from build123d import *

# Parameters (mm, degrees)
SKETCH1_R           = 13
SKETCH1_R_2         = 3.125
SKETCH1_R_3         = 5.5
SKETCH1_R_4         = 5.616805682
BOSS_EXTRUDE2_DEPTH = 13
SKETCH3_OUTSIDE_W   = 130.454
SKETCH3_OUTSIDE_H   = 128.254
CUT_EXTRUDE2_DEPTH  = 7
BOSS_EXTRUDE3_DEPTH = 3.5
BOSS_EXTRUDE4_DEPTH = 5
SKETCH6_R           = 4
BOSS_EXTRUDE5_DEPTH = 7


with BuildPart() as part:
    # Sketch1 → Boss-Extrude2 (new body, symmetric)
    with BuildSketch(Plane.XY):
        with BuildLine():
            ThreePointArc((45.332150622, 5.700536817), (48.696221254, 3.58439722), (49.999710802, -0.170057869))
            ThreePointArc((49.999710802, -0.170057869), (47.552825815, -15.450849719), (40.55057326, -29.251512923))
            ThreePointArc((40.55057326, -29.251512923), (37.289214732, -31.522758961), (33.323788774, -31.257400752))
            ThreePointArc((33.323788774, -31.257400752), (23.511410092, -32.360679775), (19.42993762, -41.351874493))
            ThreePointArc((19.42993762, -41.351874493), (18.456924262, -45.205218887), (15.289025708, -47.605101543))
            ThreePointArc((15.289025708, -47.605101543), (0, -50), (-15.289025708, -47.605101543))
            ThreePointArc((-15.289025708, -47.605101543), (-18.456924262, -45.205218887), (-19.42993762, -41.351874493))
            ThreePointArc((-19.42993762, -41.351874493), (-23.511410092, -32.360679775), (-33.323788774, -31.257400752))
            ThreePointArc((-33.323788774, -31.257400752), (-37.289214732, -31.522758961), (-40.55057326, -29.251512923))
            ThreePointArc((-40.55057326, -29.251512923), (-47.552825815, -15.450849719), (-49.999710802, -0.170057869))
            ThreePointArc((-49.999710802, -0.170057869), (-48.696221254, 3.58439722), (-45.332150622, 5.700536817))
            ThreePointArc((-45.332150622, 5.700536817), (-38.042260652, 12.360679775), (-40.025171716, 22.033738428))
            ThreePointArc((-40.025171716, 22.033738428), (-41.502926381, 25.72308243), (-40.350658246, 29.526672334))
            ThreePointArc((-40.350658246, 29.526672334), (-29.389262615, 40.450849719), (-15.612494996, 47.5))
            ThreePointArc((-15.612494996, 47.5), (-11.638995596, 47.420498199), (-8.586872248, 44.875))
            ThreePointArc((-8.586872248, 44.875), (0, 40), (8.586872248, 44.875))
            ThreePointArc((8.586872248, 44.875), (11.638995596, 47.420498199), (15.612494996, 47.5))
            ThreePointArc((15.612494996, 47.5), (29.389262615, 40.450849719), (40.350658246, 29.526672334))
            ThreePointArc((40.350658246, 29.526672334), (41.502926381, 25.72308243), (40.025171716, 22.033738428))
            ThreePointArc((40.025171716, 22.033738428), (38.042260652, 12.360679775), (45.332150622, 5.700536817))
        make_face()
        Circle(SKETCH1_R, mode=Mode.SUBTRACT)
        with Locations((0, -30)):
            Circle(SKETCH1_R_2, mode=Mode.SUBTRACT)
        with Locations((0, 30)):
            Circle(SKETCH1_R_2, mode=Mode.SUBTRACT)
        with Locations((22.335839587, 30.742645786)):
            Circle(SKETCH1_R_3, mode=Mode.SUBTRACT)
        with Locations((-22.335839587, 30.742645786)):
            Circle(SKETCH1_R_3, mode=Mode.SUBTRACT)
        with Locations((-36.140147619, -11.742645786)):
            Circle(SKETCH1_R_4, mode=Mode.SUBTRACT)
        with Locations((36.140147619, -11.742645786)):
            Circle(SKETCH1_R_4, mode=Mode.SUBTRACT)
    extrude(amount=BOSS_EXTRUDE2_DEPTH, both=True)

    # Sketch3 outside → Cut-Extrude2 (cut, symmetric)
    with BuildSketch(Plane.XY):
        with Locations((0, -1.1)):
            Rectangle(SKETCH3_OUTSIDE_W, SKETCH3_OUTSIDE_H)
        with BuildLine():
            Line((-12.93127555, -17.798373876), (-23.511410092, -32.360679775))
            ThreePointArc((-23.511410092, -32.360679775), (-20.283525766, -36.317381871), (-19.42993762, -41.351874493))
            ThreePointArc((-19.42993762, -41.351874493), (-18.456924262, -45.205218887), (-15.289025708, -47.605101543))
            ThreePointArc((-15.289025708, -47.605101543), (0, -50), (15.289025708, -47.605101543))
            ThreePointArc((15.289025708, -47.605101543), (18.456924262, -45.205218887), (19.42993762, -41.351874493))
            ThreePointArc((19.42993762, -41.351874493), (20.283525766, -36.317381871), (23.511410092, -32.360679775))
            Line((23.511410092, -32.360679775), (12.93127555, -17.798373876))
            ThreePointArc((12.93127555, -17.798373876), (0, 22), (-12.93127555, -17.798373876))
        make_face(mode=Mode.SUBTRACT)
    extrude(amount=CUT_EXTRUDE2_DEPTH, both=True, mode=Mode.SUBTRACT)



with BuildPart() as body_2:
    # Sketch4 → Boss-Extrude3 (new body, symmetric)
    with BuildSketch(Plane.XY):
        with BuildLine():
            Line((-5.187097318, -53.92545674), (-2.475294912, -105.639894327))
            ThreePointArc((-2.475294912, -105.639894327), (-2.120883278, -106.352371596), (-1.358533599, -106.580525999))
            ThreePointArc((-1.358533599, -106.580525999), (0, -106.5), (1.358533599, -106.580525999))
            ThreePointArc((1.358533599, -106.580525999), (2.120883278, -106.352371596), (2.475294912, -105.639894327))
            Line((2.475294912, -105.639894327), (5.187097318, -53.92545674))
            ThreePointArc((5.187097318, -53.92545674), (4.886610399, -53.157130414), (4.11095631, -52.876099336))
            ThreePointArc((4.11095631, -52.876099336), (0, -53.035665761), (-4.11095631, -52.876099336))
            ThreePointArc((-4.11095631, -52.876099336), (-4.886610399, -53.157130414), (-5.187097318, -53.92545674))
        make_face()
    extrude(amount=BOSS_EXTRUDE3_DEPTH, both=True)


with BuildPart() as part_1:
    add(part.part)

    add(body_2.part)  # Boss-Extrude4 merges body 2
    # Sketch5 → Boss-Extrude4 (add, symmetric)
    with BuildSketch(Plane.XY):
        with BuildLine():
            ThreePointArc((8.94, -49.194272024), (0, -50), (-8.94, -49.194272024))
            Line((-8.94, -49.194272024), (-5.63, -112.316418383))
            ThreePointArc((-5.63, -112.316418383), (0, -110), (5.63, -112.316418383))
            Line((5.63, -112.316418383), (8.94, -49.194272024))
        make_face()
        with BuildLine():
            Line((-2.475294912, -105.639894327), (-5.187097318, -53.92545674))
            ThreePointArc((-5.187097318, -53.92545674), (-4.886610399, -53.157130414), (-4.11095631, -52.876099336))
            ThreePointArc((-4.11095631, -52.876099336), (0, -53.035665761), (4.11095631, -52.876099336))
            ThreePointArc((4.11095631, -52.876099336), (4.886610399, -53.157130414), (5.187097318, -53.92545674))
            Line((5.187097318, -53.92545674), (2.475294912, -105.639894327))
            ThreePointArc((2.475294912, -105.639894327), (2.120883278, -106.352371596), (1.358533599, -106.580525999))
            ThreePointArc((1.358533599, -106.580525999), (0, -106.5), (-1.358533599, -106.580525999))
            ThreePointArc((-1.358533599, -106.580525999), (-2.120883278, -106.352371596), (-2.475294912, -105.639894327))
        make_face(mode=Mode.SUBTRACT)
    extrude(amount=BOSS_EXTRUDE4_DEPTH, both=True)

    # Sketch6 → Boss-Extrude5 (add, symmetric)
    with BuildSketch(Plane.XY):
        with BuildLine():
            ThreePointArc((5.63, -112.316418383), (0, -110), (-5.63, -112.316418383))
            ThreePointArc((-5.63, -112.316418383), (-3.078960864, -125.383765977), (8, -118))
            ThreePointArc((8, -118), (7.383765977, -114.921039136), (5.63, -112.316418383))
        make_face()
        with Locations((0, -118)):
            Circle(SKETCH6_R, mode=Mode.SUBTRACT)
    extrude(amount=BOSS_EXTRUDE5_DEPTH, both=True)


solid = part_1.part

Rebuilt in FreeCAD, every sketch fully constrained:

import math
import FreeCAD as App
import Part
import Sketcher
Q = App.Units.Quantity

doc = App.newDocument("Part")
body = doc.addObject("PartDesign::Body", "Body")

# Sketch on XY plane
sketch1 = body.newObject("Sketcher::SketchObject", "Sketch")
sketch1.AttachmentSupport = (doc.getObject("XY_Plane"), [""])
sketch1.MapMode = "FlatFace"
sketch1.addGeometry(Part.ArcOfCircle(Part.Circle(App.Vector(44, -0.1, 0), App.Vector(0, 0, 1), 6), math.radians(0), math.radians(77)), False)
sketch1.addGeometry(Part.ArcOfCircle(Part.Circle(App.Vector(47.6, 15.5, 0), App.Vector(0, 0, 1), 10), math.radians(139), math.radians(257)), False)
sketch1.addGeometry(Part.ArcOfCircle(Part.Circle(App.Vector(35.5, 26, 0), App.Vector(0, 0, 1), 6), math.radians(-41), math.radians(36)), False)
sketch1.addGeometry(Part.ArcOfCircle(Part.Circle(App.Vector(0, 0, 0), App.Vector(0, 0, 1), 50), math.radians(36), math.radians(72)), False)
sketch1.addGeometry(Part.ArcOfCircle(Part.Circle(App.Vector(13.7, 41.8, 0), App.Vector(0, 0, 1), 6), math.radians(72), math.radians(149)), False)
sketch1.addGeometry(Part.ArcOfCircle(Part.Circle(App.Vector(0, 50, 0), App.Vector(0, 0, 1), 10), math.radians(-149), math.radians(-31)), False)
sketch1.addGeometry(Part.ArcOfCircle(Part.Circle(App.Vector(-13.7, 41.8, 0), App.Vector(0, 0, 1), 6), math.radians(31), math.radians(108)), False)
sketch1.addGeometry(Part.ArcOfCircle(Part.Circle(App.Vector(0, 0, 0), App.Vector(0, 0, 1), 50), math.radians(108), math.radians(144)), False)
sketch1.addGeometry(Part.ArcOfCircle(Part.Circle(App.Vector(-35.5, 26, 0), App.Vector(0, 0, 1), 6), math.radians(144), math.radians(221)), False)
sketch1.addGeometry(Part.ArcOfCircle(Part.Circle(App.Vector(-47.6, 15.5, 0), App.Vector(0, 0, 1), 10), math.radians(-77), math.radians(41)), False)
sketch1.addGeometry(Part.ArcOfCircle(Part.Circle(App.Vector(-44, -0.1, 0), App.Vector(0, 0, 1), 6), math.radians(103), math.radians(180)), False)
sketch1.addGeometry(Part.ArcOfCircle(Part.Circle(App.Vector(0, 0, 0), App.Vector(0, 0, 1), 50), math.radians(-180), math.radians(-144)), False)
sketch1.addGeometry(Part.ArcOfCircle(Part.Circle(App.Vector(-35.7, -25.7, 0), App.Vector(0, 0, 1), 6), math.radians(-144), math.radians(-67)), False)
sketch1.addGeometry(Part.ArcOfCircle(Part.Circle(App.Vector(-29.4, -40.5, 0), App.Vector(0, 0, 1), 10), math.radians(-5), math.radians(113)), False)
sketch1.addGeometry(Part.ArcOfCircle(Part.Circle(App.Vector(-13.5, -41.9, 0), App.Vector(0, 0, 1), 6), math.radians(175), math.radians(252)), False)
sketch1.addGeometry(Part.ArcOfCircle(Part.Circle(App.Vector(0, 0, 0), App.Vector(0, 0, 1), 50), math.radians(-108), math.radians(-72)), False)
sketch1.addGeometry(Part.ArcOfCircle(Part.Circle(App.Vector(13.5, -41.9, 0), App.Vector(0, 0, 1), 6), math.radians(-72), math.radians(5)), False)
sketch1.addGeometry(Part.ArcOfCircle(Part.Circle(App.Vector(29.4, -40.5, 0), App.Vector(0, 0, 1), 10), math.radians(67), math.radians(185)), False)
sketch1.addGeometry(Part.ArcOfCircle(Part.Circle(App.Vector(35.7, -25.7, 0), App.Vector(0, 0, 1), 6), math.radians(-113), math.radians(-36)), False)
sketch1.addGeometry(Part.ArcOfCircle(Part.Circle(App.Vector(0, 0, 0), App.Vector(0, 0, 1), 50), math.radians(-36), math.radians(0)), False)
sketch1.addGeometry(Part.Circle(App.Vector(36.1, -11.7, 0), App.Vector(0, 0, 1), 5.6), False)
sketch1.addGeometry(Part.Circle(App.Vector(0, -30, 0), App.Vector(0, 0, 1), 3.1), False)
sketch1.addGeometry(Part.Circle(App.Vector(0, 0, 0), App.Vector(0, 0, 1), 13), False)
sketch1.addGeometry(Part.Circle(App.Vector(-36.1, -11.7, 0), App.Vector(0, 0, 1), 5.6), False)
sketch1.addGeometry(Part.Circle(App.Vector(22.3, 30.7, 0), App.Vector(0, 0, 1), 5.5), False)
sketch1.addGeometry(Part.Circle(App.Vector(0, 30, 0), App.Vector(0, 0, 1), 3.1), False)
sketch1.addGeometry(Part.Circle(App.Vector(-22.3, 30.7, 0), App.Vector(0, 0, 1), 5.5), False)
sketch1.addConstraint(Sketcher.Constraint("Tangent", 0, 2, 1, 2))
sketch1.addConstraint(Sketcher.Constraint("Tangent", 1, 1, 2, 1))
sketch1.addConstraint(Sketcher.Constraint("Tangent", 2, 2, 3, 1))
sketch1.addConstraint(Sketcher.Constraint("Tangent", 3, 2, 4, 1))
sketch1.addConstraint(Sketcher.Constraint("Tangent", 4, 2, 5, 2))
sketch1.addConstraint(Sketcher.Constraint("Tangent", 5, 1, 6, 1))
sketch1.addConstraint(Sketcher.Constraint("Tangent", 6, 2, 7, 1))
sketch1.addConstraint(Sketcher.Constraint("Tangent", 7, 2, 8, 1))
sketch1.addConstraint(Sketcher.Constraint("Tangent", 8, 2, 9, 2))
sketch1.addConstraint(Sketcher.Constraint("Tangent", 9, 1, 10, 1))
sketch1.addConstraint(Sketcher.Constraint("Tangent", 10, 2, 11, 1))
sketch1.addConstraint(Sketcher.Constraint("Tangent", 11, 2, 12, 1))
sketch1.addConstraint(Sketcher.Constraint("Tangent", 12, 2, 13, 2))
sketch1.addConstraint(Sketcher.Constraint("Tangent", 13, 1, 14, 1))
sketch1.addConstraint(Sketcher.Constraint("Tangent", 14, 2, 15, 1))
sketch1.addConstraint(Sketcher.Constraint("Tangent", 15, 2, 16, 1))
sketch1.addConstraint(Sketcher.Constraint("Tangent", 16, 2, 17, 2))
sketch1.addConstraint(Sketcher.Constraint("Tangent", 17, 1, 18, 1))
sketch1.addConstraint(Sketcher.Constraint("Tangent", 18, 2, 19, 1))
sketch1.addConstraint(Sketcher.Constraint("Tangent", 19, 2, 0, 1))
sketch1.addConstraint(Sketcher.Constraint("Coincident", 3, 3, -1, 1))
sketch1.addConstraint(Sketcher.Constraint("Coincident", 7, 3, -1, 1))
sketch1.addConstraint(Sketcher.Constraint("Coincident", 11, 3, -1, 1))
sketch1.addConstraint(Sketcher.Constraint("Coincident", 15, 3, -1, 1))
sketch1.addConstraint(Sketcher.Constraint("Coincident", 19, 3, -1, 1))
sketch1.addConstraint(Sketcher.Constraint("Coincident", 22, 3, -1, 1))
sketch1.addConstraint(Sketcher.Constraint("Equal", 0, 2))
sketch1.addConstraint(Sketcher.Constraint("Equal", 2, 4))
sketch1.addConstraint(Sketcher.Constraint("Equal", 1, 5))
sketch1.addConstraint(Sketcher.Constraint("Equal", 4, 6))
sketch1.addConstraint(Sketcher.Constraint("Equal", 3, 7))
sketch1.addConstraint(Sketcher.Constraint("Equal", 6, 8))
sketch1.addConstraint(Sketcher.Constraint("Equal", 5, 9))
sketch1.addConstraint(Sketcher.Constraint("Equal", 8, 10))
sketch1.addConstraint(Sketcher.Constraint("Equal", 7, 11))
sketch1.addConstraint(Sketcher.Constraint("Equal", 10, 12))
sketch1.addConstraint(Sketcher.Constraint("Equal", 9, 13))
sketch1.addConstraint(Sketcher.Constraint("Equal", 12, 14))
sketch1.addConstraint(Sketcher.Constraint("Equal", 11, 15))
sketch1.addConstraint(Sketcher.Constraint("Equal", 14, 16))
sketch1.addConstraint(Sketcher.Constraint("Equal", 13, 17))
sketch1.addConstraint(Sketcher.Constraint("Equal", 16, 18))
sketch1.addConstraint(Sketcher.Constraint("Equal", 15, 19))
sketch1.addConstraint(Sketcher.Constraint("Equal", 20, 23))
sketch1.addConstraint(Sketcher.Constraint("Equal", 21, 25))
sketch1.addConstraint(Sketcher.Constraint("Equal", 24, 26))
sketch1.addConstraint(Sketcher.Constraint("Symmetric", 21, 3, 25, 3, -1, 1))
sketch1.addConstraint(Sketcher.Constraint("Symmetric", 1, 3, 9, 3, -2))
sketch1.addConstraint(Sketcher.Constraint("Symmetric", 13, 3, 17, 3, -2))
sketch1.addConstraint(Sketcher.Constraint("Symmetric", 20, 3, 23, 3, -2))
sketch1.addConstraint(Sketcher.Constraint("Symmetric", 24, 3, 26, 3, -2))
sketch1.addConstraint(Sketcher.Constraint("PointOnObject", 5, 3, -2))
sketch1.addConstraint(Sketcher.Constraint("PointOnObject", 21, 3, -2))
sketch1.addConstraint(Sketcher.Constraint("Diameter", 22, Q("26 mm")))
sketch1.addConstraint(Sketcher.Constraint("Diameter", 24, Q("11 mm")))
sketch1.addConstraint(Sketcher.Constraint("Radius", 0, Q("6 mm")))
sketch1.addConstraint(Sketcher.Constraint("Radius", 1, Q("10 mm")))
sketch1.addConstraint(Sketcher.Constraint("Radius", 3, Q("50 mm")))
sketch1.addConstraint(Sketcher.Constraint("Diameter", 21, Q("6.25 mm")))
sketch1.addConstraint(Sketcher.Constraint("DistanceY", -1, 1, 5, 3, Q("50 mm")))
sketch1.addConstraint(Sketcher.Constraint("DistanceY", 21, 3, -1, 1, Q("30 mm")))
sketch1.addConstraint(Sketcher.Constraint("Diameter", 20, Q("11.233611 mm")))
sketch1.addConstraint(Sketcher.Constraint("DistanceY", 12, 2, -1, 1, Q("31.257401 mm")))
sketch1.addConstraint(Sketcher.Constraint("DistanceY", 14, 2, -1, 1, Q("47.605102 mm")))
sketch1.addConstraint(Sketcher.Constraint("DistanceY", 0, 3, 1, 3, Q("15.600501 mm")))
sketch1.addConstraint(Sketcher.Constraint("DistanceY", 13, 3, 10, 3, Q("40.301199 mm")))
sketch1.addConstraint(Sketcher.Constraint("DistanceX", -1, 1, 24, 3, Q("22.33584 mm")))
sketch1.addConstraint(Sketcher.Constraint("DistanceX", 20, 3, 1, 3, Q("11.412678 mm")))
sketch1.addConstraint(Sketcher.Constraint("DistanceY", 20, 3, -1, 1, Q("11.742646 mm")))
sketch1.addConstraint(Sketcher.Constraint("DistanceY", -1, 1, 24, 3, Q("30.742646 mm")))
pad1 = body.newObject("PartDesign::Pad", "Pad")
pad1.Profile = sketch1
pad1.Length = 26
pad1.Midplane = True

# Sketch on XY plane
sketch2 = body.newObject("Sketcher::SketchObject", "Sketch001")
sketch2.AttachmentSupport = (doc.getObject("XY_Plane"), [""])
sketch2.MapMode = "FlatFace"
sketch2.addGeometry(Part.LineSegment(App.Vector(-65, 63, 0), App.Vector(-65, -65, 0)), False)
sketch2.addGeometry(Part.LineSegment(App.Vector(-65, -65, 0), App.Vector(65, -65, 0)), False)
sketch2.addGeometry(Part.LineSegment(App.Vector(65, -65, 0), App.Vector(65, 63, 0)), False)
sketch2.addGeometry(Part.LineSegment(App.Vector(65, 63, 0), App.Vector(-65, 63, 0)), False)
sketch2.addGeometry(Part.LineSegment(App.Vector(-24, -32, 0), App.Vector(-13, -18, 0)), False)
sketch2.addGeometry(Part.ArcOfCircle(Part.Circle(App.Vector(0, 0, 0), App.Vector(0, 0, 1), 22), math.radians(-54), math.radians(234)), False)
sketch2.addGeometry(Part.LineSegment(App.Vector(13, -18, 0), App.Vector(24, -32, 0)), False)
sketch2.addGeometry(Part.ArcOfCircle(Part.Circle(App.Vector(29, -40, 0), App.Vector(0, 0, 1), 10), math.radians(126), math.radians(185)), False)
sketch2.addGeometry(Part.ArcOfCircle(Part.Circle(App.Vector(13, -42, 0), App.Vector(0, 0, 1), 6), math.radians(-72), math.radians(5)), False)
sketch2.addGeometry(Part.ArcOfCircle(Part.Circle(App.Vector(0, 0, 0), App.Vector(0, 0, 1), 50), math.radians(-108), math.radians(-72)), False)
sketch2.addGeometry(Part.ArcOfCircle(Part.Circle(App.Vector(-13, -42, 0), App.Vector(0, 0, 1), 6), math.radians(175), math.radians(252)), False)
sketch2.addGeometry(Part.ArcOfCircle(Part.Circle(App.Vector(-29, -40, 0), App.Vector(0, 0, 1), 10), math.radians(-5), math.radians(54)), False)
sketch2.addConstraint(Sketcher.Constraint("Coincident", 0, 2, 1, 1))
sketch2.addConstraint(Sketcher.Constraint("Coincident", 1, 2, 2, 1))
sketch2.addConstraint(Sketcher.Constraint("Coincident", 2, 2, 3, 1))
sketch2.addConstraint(Sketcher.Constraint("Coincident", 3, 2, 0, 1))
sketch2.addConstraint(Sketcher.Constraint("Coincident", 4, 2, 5, 2))
sketch2.addConstraint(Sketcher.Constraint("Coincident", 5, 1, 6, 1))
sketch2.addConstraint(Sketcher.Constraint("Coincident", 6, 2, 7, 1))
sketch2.addConstraint(Sketcher.Constraint("Tangent", 7, 2, 8, 2))
sketch2.addConstraint(Sketcher.Constraint("Tangent", 8, 1, 9, 2))
sketch2.addConstraint(Sketcher.Constraint("Tangent", 9, 1, 10, 2))
sketch2.addConstraint(Sketcher.Constraint("Tangent", 10, 1, 11, 1))
sketch2.addConstraint(Sketcher.Constraint("Coincident", 11, 2, 4, 1))
sketch2.addConstraint(Sketcher.Constraint("Vertical", 0))
sketch2.addConstraint(Sketcher.Constraint("Horizontal", 1))
sketch2.addConstraint(Sketcher.Constraint("Vertical", 2))
sketch2.addConstraint(Sketcher.Constraint("Horizontal", 3))
sketch2.addConstraint(Sketcher.Constraint("Coincident", 5, 3, -1, 1))
sketch2.addConstraint(Sketcher.Constraint("Coincident", 9, 3, -1, 1))
sketch2.addConstraint(Sketcher.Constraint("Equal", 8, 10))
sketch2.addConstraint(Sketcher.Constraint("Equal", 7, 11))
sketch2.addConstraint(Sketcher.Constraint("Symmetric", 7, 3, 11, 3, -2))
sketch2.addConstraint(Sketcher.Constraint("Horizontal", 4, 2, 5, 1))
sketch2.addConstraint(Sketcher.Constraint("Horizontal", 6, 2, 11, 2))
sketch2.addConstraint(Sketcher.Constraint("Radius", 5, Q("22 mm")))
sketch2.addConstraint(Sketcher.Constraint("Radius", 7, Q("10 mm")))
sketch2.addConstraint(Sketcher.Constraint("Radius", 8, Q("6 mm")))
sketch2.addConstraint(Sketcher.Constraint("Radius", 9, Q("50 mm")))
sketch2.addConstraint(Sketcher.Constraint("Angle", 4, Q("54 deg")))
sketch2.addConstraint(Sketcher.Constraint("Distance", 4, Q("18 mm")))
sketch2.addConstraint(Sketcher.Constraint("DistanceX", 1, 1, 1, 2, Q("130.454 mm")))
sketch2.addConstraint(Sketcher.Constraint("DistanceY", 0, 2, 0, 1, Q("128.254 mm")))
sketch2.addConstraint(Sketcher.Constraint("DistanceX", 0, 2, -1, 1, Q("65.227 mm")))
sketch2.addConstraint(Sketcher.Constraint("DistanceY", 0, 2, -1, 1, Q("65.227 mm")))
sketch2.addConstraint(Sketcher.Constraint("DistanceY", 8, 1, -1, 1, Q("47.605102 mm")))
sketch2.addConstraint(Sketcher.Constraint("DistanceY", 7, 2, 5, 1, Q("23.553501 mm")))
pocket1 = body.newObject("PartDesign::Pocket", "Pocket")
pocket1.Profile = sketch2
pocket1.Length = 14
pocket1.Midplane = True
body2 = doc.addObject("PartDesign::Body", "Body001")

# Sketch on XY plane
sketch3 = body2.newObject("Sketcher::SketchObject", "Sketch002")
sketch3.AttachmentSupport = (doc.getObject("XY_Plane001"), [""])
sketch3.MapMode = "FlatFace"
sketch3.addGeometry(Part.LineSegment(App.Vector(-5.2, -53.9, 0), App.Vector(-2.5, -105.6, 0)), False)
sketch3.addGeometry(Part.ArcOfCircle(Part.Circle(App.Vector(-1.5, -105.6, 0), App.Vector(0, 0, 1), 1), math.radians(-177), math.radians(-83)), False)
sketch3.addGeometry(Part.ArcOfCircle(Part.Circle(App.Vector(0, -118, 0), App.Vector(0, 0, 1), 11.5), math.radians(83.22), math.radians(96.78)), False)
sketch3.addGeometry(Part.ArcOfCircle(Part.Circle(App.Vector(1.5, -105.6, 0), App.Vector(0, 0, 1), 1), math.radians(-97), math.radians(-3)), False)
sketch3.addGeometry(Part.LineSegment(App.Vector(2.5, -105.6, 0), App.Vector(5.2, -53.9, 0)), False)
sketch3.addGeometry(Part.ArcOfCircle(Part.Circle(App.Vector(4.2, -53.9, 0), App.Vector(0, 0, 1), 1), math.radians(-3), math.radians(94)), False)
sketch3.addGeometry(Part.ArcOfCircle(Part.Circle(App.Vector(0, 0, 0), App.Vector(0, 0, 1), 53), math.radians(-94.45), math.radians(-85.55)), False)
sketch3.addGeometry(Part.ArcOfCircle(Part.Circle(App.Vector(-4.2, -53.9, 0), App.Vector(0, 0, 1), 1), math.radians(86), math.radians(183)), False)
sketch3.addConstraint(Sketcher.Constraint("Tangent", 0, 2, 1, 1))
sketch3.addConstraint(Sketcher.Constraint("Tangent", 1, 2, 2, 2))
sketch3.addConstraint(Sketcher.Constraint("Tangent", 2, 1, 3, 1))
sketch3.addConstraint(Sketcher.Constraint("Tangent", 3, 2, 4, 1))
sketch3.addConstraint(Sketcher.Constraint("Tangent", 4, 2, 5, 1))
sketch3.addConstraint(Sketcher.Constraint("Tangent", 5, 2, 6, 2))
sketch3.addConstraint(Sketcher.Constraint("Tangent", 6, 1, 7, 1))
sketch3.addConstraint(Sketcher.Constraint("Tangent", 7, 2, 0, 1))
sketch3.addConstraint(Sketcher.Constraint("Coincident", 6, 3, -1, 1))
sketch3.addConstraint(Sketcher.Constraint("Equal", 1, 3))
sketch3.addConstraint(Sketcher.Constraint("Equal", 3, 5))
sketch3.addConstraint(Sketcher.Constraint("Equal", 5, 7))
sketch3.addConstraint(Sketcher.Constraint("Symmetric", 1, 3, 3, 3, -2))
sketch3.addConstraint(Sketcher.Constraint("Horizontal", 5, 3, 7, 3))
sketch3.addConstraint(Sketcher.Constraint("Radius", 1, Q("1 mm")))
sketch3.addConstraint(Sketcher.Constraint("Radius", 2, Q("11.5 mm")))
sketch3.addConstraint(Sketcher.Constraint("DistanceY", 2, 3, -1, 1, Q("118 mm")))
sketch3.addConstraint(Sketcher.Constraint("Radius", 6, Q("53.035666 mm")))
sketch3.addConstraint(Sketcher.Constraint("DistanceY", 5, 2, -1, 1, Q("52.876099 mm")))
sketch3.addConstraint(Sketcher.Constraint("DistanceX", 1, 2, 3, 3, Q("2.835201 mm")))
pad2 = body2.newObject("PartDesign::Pad", "Pad001")
pad2.Profile = sketch3
pad2.Length = 7
pad2.Midplane = True
body.AllowCompound = True
doc.recompute()

boolean = body.newObject("PartDesign::Boolean", "Boolean")
boolean.Type = "Fuse"
boolean.addObjects([body2])

# Sketch on XY plane
sketch4 = body.newObject("Sketcher::SketchObject", "Sketch003")
sketch4.AttachmentSupport = (doc.getObject("XY_Plane"), [""])
sketch4.MapMode = "FlatFace"
sketch4.addGeometry(Part.ArcOfCircle(Part.Circle(App.Vector(0, 0, 0), App.Vector(0, 0, 1), 50), math.radians(-100), math.radians(-80)), False)
sketch4.addGeometry(Part.LineSegment(App.Vector(-8.9, -49.2, 0), App.Vector(-5.6, -112.3, 0)), False)
sketch4.addGeometry(Part.ArcOfCircle(Part.Circle(App.Vector(0, -118, 0), App.Vector(0, 0, 1), 8), math.radians(45), math.radians(135)), False)
sketch4.addGeometry(Part.LineSegment(App.Vector(5.6, -112.3, 0), App.Vector(8.9, -49.2, 0)), False)
sketch4.addGeometry(Part.ArcOfCircle(Part.Circle(App.Vector(-1.5, -105.6, 0), App.Vector(0, 0, 1), 1), math.radians(-177), math.radians(-83)), False)
sketch4.addGeometry(Part.LineSegment(App.Vector(-2.5, -105.6, 0), App.Vector(-5.2, -53.9, 0)), False)
sketch4.addGeometry(Part.ArcOfCircle(Part.Circle(App.Vector(-4.2, -53.9, 0), App.Vector(0, 0, 1), 1), math.radians(86), math.radians(183)), False)
sketch4.addGeometry(Part.ArcOfCircle(Part.Circle(App.Vector(0, 0, 0), App.Vector(0, 0, 1), 53), math.radians(-94.45), math.radians(-85.55)), False)
sketch4.addGeometry(Part.ArcOfCircle(Part.Circle(App.Vector(4.2, -53.9, 0), App.Vector(0, 0, 1), 1), math.radians(-3), math.radians(94)), False)
sketch4.addGeometry(Part.LineSegment(App.Vector(5.2, -53.9, 0), App.Vector(2.5, -105.6, 0)), False)
sketch4.addGeometry(Part.ArcOfCircle(Part.Circle(App.Vector(1.5, -105.6, 0), App.Vector(0, 0, 1), 1), math.radians(-97), math.radians(-3)), False)
sketch4.addGeometry(Part.ArcOfCircle(Part.Circle(App.Vector(0, -118, 0), App.Vector(0, 0, 1), 11.5), math.radians(83.22), math.radians(96.78)), False)
sketch4.addConstraint(Sketcher.Constraint("Coincident", 0, 1, 1, 1))
sketch4.addConstraint(Sketcher.Constraint("Coincident", 1, 2, 2, 2))
sketch4.addConstraint(Sketcher.Constraint("Coincident", 2, 1, 3, 1))
sketch4.addConstraint(Sketcher.Constraint("Coincident", 3, 2, 0, 2))
sketch4.addConstraint(Sketcher.Constraint("Tangent", 4, 1, 5, 1))
sketch4.addConstraint(Sketcher.Constraint("Tangent", 5, 2, 6, 2))
sketch4.addConstraint(Sketcher.Constraint("Tangent", 6, 1, 7, 1))
sketch4.addConstraint(Sketcher.Constraint("Tangent", 7, 2, 8, 2))
sketch4.addConstraint(Sketcher.Constraint("Tangent", 8, 1, 9, 1))
sketch4.addConstraint(Sketcher.Constraint("Tangent", 9, 2, 10, 2))
sketch4.addConstraint(Sketcher.Constraint("Tangent", 10, 1, 11, 1))
sketch4.addConstraint(Sketcher.Constraint("Tangent", 11, 2, 4, 2))
sketch4.addConstraint(Sketcher.Constraint("Coincident", 0, 3, -1, 1))
sketch4.addConstraint(Sketcher.Constraint("Coincident", 7, 3, -1, 1))
sketch4.addConstraint(Sketcher.Constraint("Coincident", 11, 3, 2, 3))
sketch4.addConstraint(Sketcher.Constraint("Equal", 4, 6))
sketch4.addConstraint(Sketcher.Constraint("Equal", 6, 8))
sketch4.addConstraint(Sketcher.Constraint("Equal", 8, 10))
sketch4.addConstraint(Sketcher.Constraint("Symmetric", 4, 3, 10, 3, -2))
sketch4.addConstraint(Sketcher.Constraint("Parallel", 1, 5))
sketch4.addConstraint(Sketcher.Constraint("Parallel", 3, 9))
sketch4.addConstraint(Sketcher.Constraint("Horizontal", 6, 3, 8, 3))
sketch4.addConstraint(Sketcher.Constraint("Horizontal", 1, 2, 2, 1))
sketch4.addConstraint(Sketcher.Constraint("Radius", 0, Q("50 mm")))
sketch4.addConstraint(Sketcher.Constraint("Radius", 2, Q("8 mm")))
sketch4.addConstraint(Sketcher.Constraint("Radius", 4, Q("1 mm")))
sketch4.addConstraint(Sketcher.Constraint("Radius", 11, Q("11.5 mm")))
sketch4.addConstraint(Sketcher.Constraint("DistanceY", 2, 3, -1, 1, Q("118 mm")))
sketch4.addConstraint(Sketcher.Constraint("DistanceX", 0, 1, -1, 1, Q("8.94 mm")))
sketch4.addConstraint(Sketcher.Constraint("DistanceX", 1, 2, -1, 1, Q("5.63 mm")))
sketch4.addConstraint(Sketcher.Constraint("Radius", 7, Q("53.035666 mm")))
sketch4.addConstraint(Sketcher.Constraint("DistanceY", 6, 1, -1, 1, Q("52.876099 mm")))
pad3 = body.newObject("PartDesign::Pad", "Pad002")
pad3.Profile = sketch4
pad3.Length = 10
pad3.Midplane = True

# Sketch on XY plane
sketch5 = body.newObject("Sketcher::SketchObject", "Sketch004")
sketch5.AttachmentSupport = (doc.getObject("XY_Plane"), [""])
sketch5.MapMode = "FlatFace"
sketch5.addGeometry(Part.ArcOfCircle(Part.Circle(App.Vector(0, -118, 0), App.Vector(0, 0, 1), 8), math.radians(45), math.radians(135)), False)
sketch5.addGeometry(Part.ArcOfCircle(Part.Circle(App.Vector(0, -118, 0), App.Vector(0, 0, 1), 8), math.radians(135), math.radians(360)), False)
sketch5.addGeometry(Part.ArcOfCircle(Part.Circle(App.Vector(0, -118, 0), App.Vector(0, 0, 1), 8), math.radians(0), math.radians(45)), False)
sketch5.addGeometry(Part.Circle(App.Vector(0, -118, 0), App.Vector(0, 0, 1), 4), False)
sketch5.addConstraint(Sketcher.Constraint("Tangent", 0, 2, 1, 1))
sketch5.addConstraint(Sketcher.Constraint("Tangent", 1, 2, 2, 1))
sketch5.addConstraint(Sketcher.Constraint("Tangent", 2, 2, 0, 1))
sketch5.addConstraint(Sketcher.Constraint("Coincident", 3, 3, 0, 3))
sketch5.addConstraint(Sketcher.Constraint("Symmetric", 0, 2, 2, 2, -2))
sketch5.addConstraint(Sketcher.Constraint("Horizontal", 3, 3, 1, 2))
sketch5.addConstraint(Sketcher.Constraint("Diameter", 3, Q("8 mm")))
sketch5.addConstraint(Sketcher.Constraint("Radius", 0, Q("8 mm")))
sketch5.addConstraint(Sketcher.Constraint("DistanceY", 0, 3, -1, 1, Q("118 mm")))
sketch5.addConstraint(Sketcher.Constraint("DistanceX", 0, 2, -1, 1, Q("5.63 mm")))
pad4 = body.newObject("PartDesign::Pad", "Pad003")
pad4.Profile = sketch5
pad4.Length = 14
pad4.Midplane = True

doc.recompute()
